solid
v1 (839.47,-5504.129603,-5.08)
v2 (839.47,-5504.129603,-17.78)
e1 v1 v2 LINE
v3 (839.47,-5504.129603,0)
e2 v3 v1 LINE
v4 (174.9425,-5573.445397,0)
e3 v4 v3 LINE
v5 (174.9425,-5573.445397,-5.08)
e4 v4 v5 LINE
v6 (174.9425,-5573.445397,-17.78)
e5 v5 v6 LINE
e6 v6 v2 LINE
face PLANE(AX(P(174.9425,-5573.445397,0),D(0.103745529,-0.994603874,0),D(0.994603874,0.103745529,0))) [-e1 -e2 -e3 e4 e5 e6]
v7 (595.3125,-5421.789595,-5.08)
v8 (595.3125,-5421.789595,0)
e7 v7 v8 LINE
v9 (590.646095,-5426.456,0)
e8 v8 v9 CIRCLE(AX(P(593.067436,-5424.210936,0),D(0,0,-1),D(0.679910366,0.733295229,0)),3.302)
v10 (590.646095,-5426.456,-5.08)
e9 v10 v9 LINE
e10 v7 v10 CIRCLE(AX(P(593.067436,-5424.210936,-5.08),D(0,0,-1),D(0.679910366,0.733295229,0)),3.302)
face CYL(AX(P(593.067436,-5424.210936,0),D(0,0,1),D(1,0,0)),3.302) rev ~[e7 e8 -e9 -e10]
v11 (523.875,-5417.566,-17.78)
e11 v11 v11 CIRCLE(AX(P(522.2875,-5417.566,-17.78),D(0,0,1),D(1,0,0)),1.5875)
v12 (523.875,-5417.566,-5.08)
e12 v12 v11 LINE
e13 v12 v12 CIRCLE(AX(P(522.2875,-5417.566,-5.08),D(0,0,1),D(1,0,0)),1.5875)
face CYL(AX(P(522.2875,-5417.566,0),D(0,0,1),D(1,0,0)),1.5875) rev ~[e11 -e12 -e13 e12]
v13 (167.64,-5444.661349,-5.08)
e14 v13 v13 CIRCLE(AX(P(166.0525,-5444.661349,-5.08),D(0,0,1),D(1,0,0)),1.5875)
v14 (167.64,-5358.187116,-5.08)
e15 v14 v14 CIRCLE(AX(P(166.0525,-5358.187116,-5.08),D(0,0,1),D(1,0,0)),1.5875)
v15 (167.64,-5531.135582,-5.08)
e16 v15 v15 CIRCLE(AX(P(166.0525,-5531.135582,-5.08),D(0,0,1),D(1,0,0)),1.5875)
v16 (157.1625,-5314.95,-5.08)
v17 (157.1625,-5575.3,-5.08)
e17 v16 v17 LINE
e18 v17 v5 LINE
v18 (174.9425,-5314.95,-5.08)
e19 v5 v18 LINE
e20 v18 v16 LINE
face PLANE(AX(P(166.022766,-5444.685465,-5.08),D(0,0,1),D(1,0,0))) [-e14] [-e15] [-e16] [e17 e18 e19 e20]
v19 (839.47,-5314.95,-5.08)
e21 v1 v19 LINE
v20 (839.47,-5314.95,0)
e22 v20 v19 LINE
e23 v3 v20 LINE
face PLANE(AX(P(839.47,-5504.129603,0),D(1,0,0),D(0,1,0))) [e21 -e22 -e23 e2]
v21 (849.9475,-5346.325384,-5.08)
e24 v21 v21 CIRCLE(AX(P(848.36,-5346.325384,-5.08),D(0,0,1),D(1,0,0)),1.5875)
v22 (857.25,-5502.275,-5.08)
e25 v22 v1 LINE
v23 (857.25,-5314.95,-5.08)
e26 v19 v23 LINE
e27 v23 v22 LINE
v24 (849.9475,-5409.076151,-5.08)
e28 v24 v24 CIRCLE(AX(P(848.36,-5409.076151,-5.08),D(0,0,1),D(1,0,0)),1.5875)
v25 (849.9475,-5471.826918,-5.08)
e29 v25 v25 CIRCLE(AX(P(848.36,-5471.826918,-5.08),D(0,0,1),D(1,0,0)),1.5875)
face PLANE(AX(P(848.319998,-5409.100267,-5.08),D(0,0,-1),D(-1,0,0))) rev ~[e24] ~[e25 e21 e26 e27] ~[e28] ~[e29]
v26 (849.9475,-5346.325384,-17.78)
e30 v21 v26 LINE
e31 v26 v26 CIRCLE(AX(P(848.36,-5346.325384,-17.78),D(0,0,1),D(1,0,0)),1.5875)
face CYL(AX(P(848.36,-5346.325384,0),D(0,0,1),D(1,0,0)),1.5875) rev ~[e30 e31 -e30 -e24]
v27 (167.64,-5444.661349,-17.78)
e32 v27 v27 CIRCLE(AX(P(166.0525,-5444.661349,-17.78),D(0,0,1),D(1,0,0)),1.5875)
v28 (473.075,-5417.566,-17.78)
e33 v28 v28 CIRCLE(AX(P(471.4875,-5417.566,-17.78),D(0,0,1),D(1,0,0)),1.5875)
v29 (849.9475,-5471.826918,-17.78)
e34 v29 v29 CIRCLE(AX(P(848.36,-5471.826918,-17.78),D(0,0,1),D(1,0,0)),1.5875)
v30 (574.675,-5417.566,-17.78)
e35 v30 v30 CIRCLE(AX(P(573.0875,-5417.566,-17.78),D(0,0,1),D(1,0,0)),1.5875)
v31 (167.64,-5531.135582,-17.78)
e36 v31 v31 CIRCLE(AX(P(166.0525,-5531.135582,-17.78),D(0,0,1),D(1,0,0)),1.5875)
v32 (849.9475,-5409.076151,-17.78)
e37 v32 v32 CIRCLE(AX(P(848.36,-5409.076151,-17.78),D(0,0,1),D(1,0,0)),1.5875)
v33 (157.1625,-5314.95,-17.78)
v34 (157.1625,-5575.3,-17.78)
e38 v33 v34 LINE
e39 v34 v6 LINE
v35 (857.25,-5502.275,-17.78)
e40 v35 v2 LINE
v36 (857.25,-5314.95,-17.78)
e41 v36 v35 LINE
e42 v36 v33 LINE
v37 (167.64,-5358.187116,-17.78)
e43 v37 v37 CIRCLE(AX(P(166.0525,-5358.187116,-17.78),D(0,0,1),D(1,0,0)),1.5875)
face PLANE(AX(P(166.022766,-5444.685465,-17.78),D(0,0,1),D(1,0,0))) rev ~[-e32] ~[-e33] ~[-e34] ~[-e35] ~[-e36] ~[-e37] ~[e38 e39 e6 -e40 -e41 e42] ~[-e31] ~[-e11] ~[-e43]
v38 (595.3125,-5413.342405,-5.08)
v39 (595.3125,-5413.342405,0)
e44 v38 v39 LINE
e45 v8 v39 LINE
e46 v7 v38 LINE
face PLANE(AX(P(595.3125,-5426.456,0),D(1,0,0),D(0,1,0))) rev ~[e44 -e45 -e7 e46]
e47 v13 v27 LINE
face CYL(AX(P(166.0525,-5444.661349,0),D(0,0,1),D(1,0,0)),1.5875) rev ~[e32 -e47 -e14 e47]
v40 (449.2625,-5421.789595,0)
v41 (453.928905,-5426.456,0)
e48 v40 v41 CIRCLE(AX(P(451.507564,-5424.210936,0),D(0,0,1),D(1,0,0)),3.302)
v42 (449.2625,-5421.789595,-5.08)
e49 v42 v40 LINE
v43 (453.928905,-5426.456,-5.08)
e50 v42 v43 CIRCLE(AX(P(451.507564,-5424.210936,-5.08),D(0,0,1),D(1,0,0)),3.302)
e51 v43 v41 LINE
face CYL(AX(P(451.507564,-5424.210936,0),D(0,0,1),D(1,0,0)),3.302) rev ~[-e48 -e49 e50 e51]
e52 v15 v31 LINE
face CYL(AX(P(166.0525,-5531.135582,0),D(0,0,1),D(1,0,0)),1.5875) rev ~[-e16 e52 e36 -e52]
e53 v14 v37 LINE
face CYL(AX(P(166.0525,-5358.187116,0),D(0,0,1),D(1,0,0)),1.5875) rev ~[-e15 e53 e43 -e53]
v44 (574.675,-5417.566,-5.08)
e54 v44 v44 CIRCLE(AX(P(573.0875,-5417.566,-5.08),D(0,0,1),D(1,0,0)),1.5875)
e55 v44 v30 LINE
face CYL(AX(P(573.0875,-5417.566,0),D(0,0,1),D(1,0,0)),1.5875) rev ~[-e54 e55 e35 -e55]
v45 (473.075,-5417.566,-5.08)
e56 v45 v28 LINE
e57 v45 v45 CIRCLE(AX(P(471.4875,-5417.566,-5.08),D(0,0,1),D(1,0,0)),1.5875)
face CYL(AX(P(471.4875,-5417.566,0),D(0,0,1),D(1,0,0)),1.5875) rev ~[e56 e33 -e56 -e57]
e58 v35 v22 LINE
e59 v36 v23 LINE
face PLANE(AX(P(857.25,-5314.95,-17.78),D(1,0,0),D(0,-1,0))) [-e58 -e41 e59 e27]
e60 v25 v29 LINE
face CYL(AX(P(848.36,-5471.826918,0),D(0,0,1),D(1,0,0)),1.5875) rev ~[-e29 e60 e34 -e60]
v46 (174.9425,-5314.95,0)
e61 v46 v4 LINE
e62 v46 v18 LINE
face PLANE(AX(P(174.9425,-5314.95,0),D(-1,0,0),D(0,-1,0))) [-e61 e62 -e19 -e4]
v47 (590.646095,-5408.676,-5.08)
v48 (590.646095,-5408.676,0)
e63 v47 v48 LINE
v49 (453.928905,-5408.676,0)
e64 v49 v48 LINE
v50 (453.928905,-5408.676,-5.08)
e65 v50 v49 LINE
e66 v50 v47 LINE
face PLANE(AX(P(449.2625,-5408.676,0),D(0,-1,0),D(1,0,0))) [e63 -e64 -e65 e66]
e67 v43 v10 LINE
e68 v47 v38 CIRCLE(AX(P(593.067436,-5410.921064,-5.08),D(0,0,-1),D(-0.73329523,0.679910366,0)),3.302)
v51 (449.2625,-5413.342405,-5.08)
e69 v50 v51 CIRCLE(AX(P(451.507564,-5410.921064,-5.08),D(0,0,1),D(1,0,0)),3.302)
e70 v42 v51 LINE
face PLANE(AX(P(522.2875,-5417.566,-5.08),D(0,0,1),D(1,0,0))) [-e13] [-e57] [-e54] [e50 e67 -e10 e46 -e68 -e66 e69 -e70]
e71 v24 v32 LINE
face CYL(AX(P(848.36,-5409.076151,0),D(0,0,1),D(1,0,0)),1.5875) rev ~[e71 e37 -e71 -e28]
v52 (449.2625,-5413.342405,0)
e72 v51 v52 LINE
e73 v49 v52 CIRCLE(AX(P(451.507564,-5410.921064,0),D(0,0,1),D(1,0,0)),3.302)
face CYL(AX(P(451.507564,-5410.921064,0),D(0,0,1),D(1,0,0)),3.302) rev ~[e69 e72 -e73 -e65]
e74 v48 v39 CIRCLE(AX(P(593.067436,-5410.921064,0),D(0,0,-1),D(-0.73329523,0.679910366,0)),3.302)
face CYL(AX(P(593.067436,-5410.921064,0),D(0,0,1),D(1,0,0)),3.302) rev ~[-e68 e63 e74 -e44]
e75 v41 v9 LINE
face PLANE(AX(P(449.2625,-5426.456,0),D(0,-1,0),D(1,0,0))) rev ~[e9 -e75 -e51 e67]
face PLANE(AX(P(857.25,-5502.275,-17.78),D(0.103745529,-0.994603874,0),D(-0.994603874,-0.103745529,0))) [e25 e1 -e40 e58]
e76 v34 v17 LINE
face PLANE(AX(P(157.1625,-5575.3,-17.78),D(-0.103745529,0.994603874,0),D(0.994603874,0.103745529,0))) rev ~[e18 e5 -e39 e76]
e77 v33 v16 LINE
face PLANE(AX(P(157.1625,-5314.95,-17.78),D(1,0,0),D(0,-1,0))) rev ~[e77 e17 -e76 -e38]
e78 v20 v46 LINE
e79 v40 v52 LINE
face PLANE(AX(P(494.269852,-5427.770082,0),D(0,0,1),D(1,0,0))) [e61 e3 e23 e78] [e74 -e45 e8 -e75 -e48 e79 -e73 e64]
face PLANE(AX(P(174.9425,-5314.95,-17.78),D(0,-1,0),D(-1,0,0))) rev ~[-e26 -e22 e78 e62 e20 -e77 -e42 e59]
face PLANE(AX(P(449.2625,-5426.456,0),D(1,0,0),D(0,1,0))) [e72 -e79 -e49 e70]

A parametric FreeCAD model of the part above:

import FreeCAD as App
import Part
import Sketcher
Q = App.Units.Quantity


def add_polygon(sketch, points):
    """Adds a closed chain of lines whose ends are joined by coincident constraints."""
    first, n = sketch.GeometryCount, len(points)
    for a, b in zip(points, points[1:] + points[:1]):
        sketch.addGeometry(Part.LineSegment(App.Vector(*a, 0), App.Vector(*b, 0)), False)
    for i in range(n):
        sketch.addConstraint(Sketcher.Constraint("Coincident", first + i, 2, first + (i + 1) % n, 1))

doc = App.newDocument("Part")
body = doc.addObject("PartDesign::Body", "Body")

# Sketch on XY plane
sketch1 = body.newObject("Sketcher::SketchObject", "Sketch")
sketch1.AttachmentSupport = (doc.getObject("XY_Plane"), [""])
sketch1.MapMode = "FlatFace"
add_polygon(sketch1, [(839.47, -5504.129603), (839.47, -5314.95), (174.9425, -5314.95), (174.9425, -5573.445397)])  # lines 0-3
sketch1.addConstraint(Sketcher.Constraint("Vertical", 0))
sketch1.addConstraint(Sketcher.Constraint("Horizontal", 1))
sketch1.addConstraint(Sketcher.Constraint("Vertical", 2))
sketch1.addConstraint(Sketcher.Constraint("DistanceX", -1, 1, 0, 2, Q("33.05 in")))
sketch1.addConstraint(Sketcher.Constraint("DistanceY", 0, 2, -1, 1, Q("209.25 in")))
sketch1.addConstraint(Sketcher.Constraint("DistanceX", 1, 2, 1, 1, Q("26.1625 in")))
sketch1.addConstraint(Sketcher.Constraint("Distance", 3, Q("668.132829 mm")))
sketch1.addConstraint(Sketcher.Constraint("DistanceY", 0, 1, 0, 2, Q("189.179603 mm")))
pad1 = body.newObject("PartDesign::Pad", "Pad")
pad1.Profile = sketch1
pad1.Length = Q("0.7 in")
pad1.Reversed = True

# Sketch on XY plane
sketch2 = body.newObject("Sketcher::SketchObject", "Sketch001")
sketch2.AttachmentSupport = (doc.getObject("XY_Plane"), [""])
sketch2.MapMode = "FlatFace"
sketch2.AttachmentOffset = App.Placement(App.Vector(0, 0, -0.7 * 25.4), App.Rotation())
add_polygon(sketch2, [(157.1625, -5314.95), (174.9425, -5314.95), (174.9425, -5573.445397), (157.1625, -5575.3)])  # lines 0-3
add_polygon(sketch2, [(839.47, -5314.95), (857.25, -5314.95), (857.25, -5502.275), (839.47, -5504.129603)])  # lines 4-7
sketch2.addConstraint(Sketcher.Constraint("Horizontal", 0))
sketch2.addConstraint(Sketcher.Constraint("Vertical", 1))
sketch2.addConstraint(Sketcher.Constraint("Vertical", 3))
sketch2.addConstraint(Sketcher.Constraint("Horizontal", 4))
sketch2.addConstraint(Sketcher.Constraint("Vertical", 5))
sketch2.addConstraint(Sketcher.Constraint("Vertical", 7))
sketch2.addConstraint(Sketcher.Constraint("Parallel", 2, 6))
sketch2.addConstraint(Sketcher.Constraint("Horizontal", 3, 2, 4, 2))
sketch2.addConstraint(Sketcher.Constraint("Equal", 0, 4))
sketch2.addConstraint(Sketcher.Constraint("DistanceX", 0, 1, 0, 2, Q("0.7 in")))
sketch2.addConstraint(Sketcher.Constraint("DistanceY", 3, 1, 3, 2, Q("10.25 in")))
sketch2.addConstraint(Sketcher.Constraint("DistanceY", 2, 2, -1, 1, Q("219.5 in")))
sketch2.addConstraint(Sketcher.Constraint("DistanceY", 5, 2, 5, 1, Q("7.375 in")))
sketch2.addConstraint(Sketcher.Constraint("DistanceX", -1, 1, 4, 2, Q("33.75 in")))
sketch2.addConstraint(Sketcher.Constraint("DistanceX", -1, 1, 2, 2, Q("6.1875 in")))
sketch2.addConstraint(Sketcher.Constraint("DistanceY", 1, 2, 1, 1, Q("258.495397 mm")))
pad2 = body.newObject("PartDesign::Pad", "Pad001")
pad2.Profile = sketch2
pad2.Length = Q("0.5 in")

# Sketch on XY plane
sketch3 = body.newObject("Sketcher::SketchObject", "Sketch002")
sketch3.AttachmentSupport = (doc.getObject("XY_Plane"), [""])
sketch3.MapMode = "FlatFace"
add_polygon(sketch3, [(449.2625, -5408.676), (449.2625, -5426.456), (595.3125, -5426.456), (595.3125, -5408.676)])  # lines 0-3
sketch3.addConstraint(Sketcher.Constraint("Vertical", 0))
sketch3.addConstraint(Sketcher.Constraint("Horizontal", 1))
sketch3.addConstraint(Sketcher.Constraint("Vertical", 2))
sketch3.addConstraint(Sketcher.Constraint("Horizontal", 3))
sketch3.addConstraint(Sketcher.Constraint("DistanceY", 0, 2, 0, 1, Q("0.7 in")))
sketch3.addConstraint(Sketcher.Constraint("DistanceX", 1, 1, 1, 2, Q("5.75 in")))
sketch3.addConstraint(Sketcher.Constraint("DistanceY", 0, 2, -1, 1, Q("213.64 in")))
sketch3.addConstraint(Sketcher.Constraint("DistanceX", -1, 1, 0, 2, Q("17.6875 in")))
pocket1 = body.newObject("PartDesign::Pocket", "Pocket")
pocket1.Profile = sketch3
pocket1.Length = Q("0.2 in")

# Sketch on XY plane
sketch4 = body.newObject("Sketcher::SketchObject", "Sketch003")
sketch4.AttachmentSupport = (doc.getObject("XY_Plane"), [""])
sketch4.MapMode = "FlatFace"
sketch4.addGeometry(Part.Circle(App.Vector(451.507564, -5410.921064, 0), App.Vector(0, 0, 1), 3.302), False)
sketch4.addGeometry(Part.Circle(App.Vector(451.507564, -5424.210936, 0), App.Vector(0, 0, 1), 3.302), False)
sketch4.addGeometry(Part.Circle(App.Vector(593.067436, -5424.210936, 0), App.Vector(0, 0, 1), 3.302), False)
sketch4.addGeometry(Part.Circle(App.Vector(593.067436, -5410.921064, 0), App.Vector(0, 0, 1), 3.302), False)
sketch4.addConstraint(Sketcher.Constraint("Equal", 0, 1))
sketch4.addConstraint(Sketcher.Constraint("Equal", 1, 2))
sketch4.addConstraint(Sketcher.Constraint("Equal", 2, 3))
sketch4.addConstraint(Sketcher.Constraint("Horizontal", 1, 3, 2, 3))
sketch4.addConstraint(Sketcher.Constraint("Horizontal", 0, 3, 3, 3))
sketch4.addConstraint(Sketcher.Constraint("Vertical", 0, 3, 1, 3))
sketch4.addConstraint(Sketcher.Constraint("Vertical", 2, 3, 3, 3))
sketch4.addConstraint(Sketcher.Constraint("Diameter", 0, Q("0.26 in")))
sketch4.addConstraint(Sketcher.Constraint("DistanceY", 1, 3, 0, 3, Q("13.289872 mm")))
sketch4.addConstraint(Sketcher.Constraint("DistanceX", 1, 3, 2, 3, Q("141.559872 mm")))
sketch4.addConstraint(Sketcher.Constraint("DistanceX", -1, 1, 0, 3, Q("451.507564 mm")))
sketch4.addConstraint(Sketcher.Constraint("DistanceY", 0, 3, -1, 1, Q("5410.921064 mm")))
pocket2 = body.newObject("PartDesign::Pocket", "Pocket001")
pocket2.Profile = sketch4
pocket2.Length = Q("0.2 in")

# Sketch on XY plane
sketch5 = body.newObject("Sketcher::SketchObject", "Sketch004")
sketch5.AttachmentSupport = (doc.getObject("XY_Plane"), [""])
sketch5.MapMode = "FlatFace"
sketch5.addGeometry(Part.Circle(App.Vector(166.0525, -5531.135582, 0), App.Vector(0, 0, 1), 1.5875), False)
sketch5.addGeometry(Part.Circle(App.Vector(166.0525, -5444.661349, 0), App.Vector(0, 0, 1), 1.5875), False)
sketch5.addGeometry(Part.Circle(App.Vector(166.0525, -5358.187116, 0), App.Vector(0, 0, 1), 1.5875), False)
sketch5.addGeometry(Part.Circle(App.Vector(848.36, -5471.826918, 0), App.Vector(0, 0, 1), 1.5875), False)
sketch5.addGeometry(Part.Circle(App.Vector(848.36, -5409.076151, 0), App.Vector(0, 0, 1), 1.5875), False)
sketch5.addGeometry(Part.Circle(App.Vector(848.36, -5346.325384, 0), App.Vector(0, 0, 1), 1.5875), False)
sketch5.addGeometry(Part.Circle(App.Vector(573.0875, -5417.566, 0), App.Vector(0, 0, 1), 1.5875), False)
sketch5.addGeometry(Part.Circle(App.Vector(522.2875, -5417.566, 0), App.Vector(0, 0, 1), 1.5875), False)
sketch5.addGeometry(Part.Circle(App.Vector(471.4875, -5417.566, 0), App.Vector(0, 0, 1), 1.5875), False)
sketch5.addConstraint(Sketcher.Constraint("Equal", 0, 1))
sketch5.addConstraint(Sketcher.Constraint("Equal", 1, 2))
sketch5.addConstraint(Sketcher.Constraint("Equal", 2, 3))
sketch5.addConstraint(Sketcher.Constraint("Equal", 3, 4))
sketch5.addConstraint(Sketcher.Constraint("Equal", 4, 5))
sketch5.addConstraint(Sketcher.Constraint("Equal", 5, 6))
sketch5.addConstraint(Sketcher.Constraint("Equal", 6, 7))
sketch5.addConstraint(Sketcher.Constraint("Equal", 7, 8))
sketch5.addConstraint(Sketcher.Constraint("Horizontal", 6, 3, 7, 3))
sketch5.addConstraint(Sketcher.Constraint("Horizontal", 7, 3, 8, 3))
sketch5.addConstraint(Sketcher.Constraint("Vertical", 0, 3, 1, 3))
sketch5.addConstraint(Sketcher.Constraint("Vertical", 1, 3, 2, 3))
sketch5.addConstraint(Sketcher.Constraint("Vertical", 3, 3, 4, 3))
sketch5.addConstraint(Sketcher.Constraint("Vertical", 4, 3, 5, 3))
sketch5.addConstraint(Sketcher.Constraint("Diameter", 0, Q("0.125 in")))
sketch5.addConstraint(Sketcher.Constraint("DistanceX", 7, 3, 6, 3, Q("2 in")))
sketch5.addConstraint(Sketcher.Constraint("DistanceX", 8, 3, 7, 3, Q("2 in")))
sketch5.addConstraint(Sketcher.Constraint("DistanceX", -1, 1, 3, 3, Q("33.4 in")))
sketch5.addConstraint(Sketcher.Constraint("DistanceY", 6, 3, -1, 1, Q("213.29 in")))
sketch5.addConstraint(Sketcher.Constraint("DistanceX", -1, 1, 6, 3, Q("22.5625 in")))
sketch5.addConstraint(Sketcher.Constraint("DistanceX", 1, 3, 6, 3, Q("16.025 in")))
sketch5.addConstraint(Sketcher.Constraint("DistanceY", 3, 3, 2, 3, Q("113.639802 mm")))
sketch5.addConstraint(Sketcher.Constraint("DistanceY", 1, 3, 4, 3, Q("35.585198 mm")))
sketch5.addConstraint(Sketcher.Constraint("DistanceY", 0, 3, 5, 3, Q("184.810198 mm")))
sketch5.addConstraint(Sketcher.Constraint("DistanceY", 1, 3, -1, 1, Q("5444.661349 mm")))
sketch5.addConstraint(Sketcher.Constraint("DistanceY", 3, 3, 1, 3, Q("27.165569 mm")))
sketch5.addConstraint(Sketcher.Constraint("DistanceY", 0, 3, 4, 3, Q("122.059431 mm")))
pocket3 = body.newObject("PartDesign::Pocket", "Pocket002")
pocket3.Profile = sketch5
pocket3.Length = Q("0.7 in")

doc.recompute()
